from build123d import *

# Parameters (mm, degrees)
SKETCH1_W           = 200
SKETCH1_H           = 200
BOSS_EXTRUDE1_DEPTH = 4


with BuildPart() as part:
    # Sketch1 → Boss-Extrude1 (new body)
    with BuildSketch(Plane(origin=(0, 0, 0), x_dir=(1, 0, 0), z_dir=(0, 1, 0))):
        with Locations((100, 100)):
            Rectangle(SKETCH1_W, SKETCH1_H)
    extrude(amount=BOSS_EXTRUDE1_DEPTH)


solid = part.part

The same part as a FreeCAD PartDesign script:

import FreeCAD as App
import Part
import Sketcher

V = App.Vector

doc = App.newDocument("Part")
body = doc.addObject("PartDesign::Body", "Body")

sketch1 = body.newObject("Sketcher::SketchObject", "Sketch")
sketch1.AttachmentSupport = (doc.getObject("XZ_Plane"), [""])
sketch1.MapMode = "FlatFace"
sketch1.addGeometry(Part.LineSegment(V(0, -200, 0), V(0, 0, 0)), False)
sketch1.addGeometry(Part.LineSegment(V(0, 0, 0), V(200, 0, 0)), False)
sketch1.addGeometry(Part.LineSegment(V(200, 0, 0), V(200, -200, 0)), False)
sketch1.addGeometry(Part.LineSegment(V(200, -200, 0), V(0, -200, 0)), False)
sketch1.addConstraint(Sketcher.Constraint("Coincident", 0, 2, 1, 1))
sketch1.addConstraint(Sketcher.Constraint("Coincident", 1, 2, 2, 1))
sketch1.addConstraint(Sketcher.Constraint("Coincident", 2, 2, 3, 1))
sketch1.addConstraint(Sketcher.Constraint("Coincident", 3, 2, 0, 1))
sketch1.addConstraint(Sketcher.Constraint("Vertical", 0))
sketch1.addConstraint(Sketcher.Constraint("Horizontal", 1))
sketch1.addConstraint(Sketcher.Constraint("Vertical", 2))
sketch1.addConstraint(Sketcher.Constraint("Horizontal", 3))
sketch1.addConstraint(Sketcher.Constraint("Coincident", 0, 2, -1, 1))
sketch1.addConstraint(Sketcher.Constraint("Equal", 3, 0))
sketch1.addConstraint(Sketcher.Constraint("DistanceX", 1, 1, 1, 2, 200.0))
pad1 = body.newObject("PartDesign::Pad", "Pad")
pad1.Profile = sketch1
pad1.Length = 4
pad1.Reversed = True

doc.recompute()
